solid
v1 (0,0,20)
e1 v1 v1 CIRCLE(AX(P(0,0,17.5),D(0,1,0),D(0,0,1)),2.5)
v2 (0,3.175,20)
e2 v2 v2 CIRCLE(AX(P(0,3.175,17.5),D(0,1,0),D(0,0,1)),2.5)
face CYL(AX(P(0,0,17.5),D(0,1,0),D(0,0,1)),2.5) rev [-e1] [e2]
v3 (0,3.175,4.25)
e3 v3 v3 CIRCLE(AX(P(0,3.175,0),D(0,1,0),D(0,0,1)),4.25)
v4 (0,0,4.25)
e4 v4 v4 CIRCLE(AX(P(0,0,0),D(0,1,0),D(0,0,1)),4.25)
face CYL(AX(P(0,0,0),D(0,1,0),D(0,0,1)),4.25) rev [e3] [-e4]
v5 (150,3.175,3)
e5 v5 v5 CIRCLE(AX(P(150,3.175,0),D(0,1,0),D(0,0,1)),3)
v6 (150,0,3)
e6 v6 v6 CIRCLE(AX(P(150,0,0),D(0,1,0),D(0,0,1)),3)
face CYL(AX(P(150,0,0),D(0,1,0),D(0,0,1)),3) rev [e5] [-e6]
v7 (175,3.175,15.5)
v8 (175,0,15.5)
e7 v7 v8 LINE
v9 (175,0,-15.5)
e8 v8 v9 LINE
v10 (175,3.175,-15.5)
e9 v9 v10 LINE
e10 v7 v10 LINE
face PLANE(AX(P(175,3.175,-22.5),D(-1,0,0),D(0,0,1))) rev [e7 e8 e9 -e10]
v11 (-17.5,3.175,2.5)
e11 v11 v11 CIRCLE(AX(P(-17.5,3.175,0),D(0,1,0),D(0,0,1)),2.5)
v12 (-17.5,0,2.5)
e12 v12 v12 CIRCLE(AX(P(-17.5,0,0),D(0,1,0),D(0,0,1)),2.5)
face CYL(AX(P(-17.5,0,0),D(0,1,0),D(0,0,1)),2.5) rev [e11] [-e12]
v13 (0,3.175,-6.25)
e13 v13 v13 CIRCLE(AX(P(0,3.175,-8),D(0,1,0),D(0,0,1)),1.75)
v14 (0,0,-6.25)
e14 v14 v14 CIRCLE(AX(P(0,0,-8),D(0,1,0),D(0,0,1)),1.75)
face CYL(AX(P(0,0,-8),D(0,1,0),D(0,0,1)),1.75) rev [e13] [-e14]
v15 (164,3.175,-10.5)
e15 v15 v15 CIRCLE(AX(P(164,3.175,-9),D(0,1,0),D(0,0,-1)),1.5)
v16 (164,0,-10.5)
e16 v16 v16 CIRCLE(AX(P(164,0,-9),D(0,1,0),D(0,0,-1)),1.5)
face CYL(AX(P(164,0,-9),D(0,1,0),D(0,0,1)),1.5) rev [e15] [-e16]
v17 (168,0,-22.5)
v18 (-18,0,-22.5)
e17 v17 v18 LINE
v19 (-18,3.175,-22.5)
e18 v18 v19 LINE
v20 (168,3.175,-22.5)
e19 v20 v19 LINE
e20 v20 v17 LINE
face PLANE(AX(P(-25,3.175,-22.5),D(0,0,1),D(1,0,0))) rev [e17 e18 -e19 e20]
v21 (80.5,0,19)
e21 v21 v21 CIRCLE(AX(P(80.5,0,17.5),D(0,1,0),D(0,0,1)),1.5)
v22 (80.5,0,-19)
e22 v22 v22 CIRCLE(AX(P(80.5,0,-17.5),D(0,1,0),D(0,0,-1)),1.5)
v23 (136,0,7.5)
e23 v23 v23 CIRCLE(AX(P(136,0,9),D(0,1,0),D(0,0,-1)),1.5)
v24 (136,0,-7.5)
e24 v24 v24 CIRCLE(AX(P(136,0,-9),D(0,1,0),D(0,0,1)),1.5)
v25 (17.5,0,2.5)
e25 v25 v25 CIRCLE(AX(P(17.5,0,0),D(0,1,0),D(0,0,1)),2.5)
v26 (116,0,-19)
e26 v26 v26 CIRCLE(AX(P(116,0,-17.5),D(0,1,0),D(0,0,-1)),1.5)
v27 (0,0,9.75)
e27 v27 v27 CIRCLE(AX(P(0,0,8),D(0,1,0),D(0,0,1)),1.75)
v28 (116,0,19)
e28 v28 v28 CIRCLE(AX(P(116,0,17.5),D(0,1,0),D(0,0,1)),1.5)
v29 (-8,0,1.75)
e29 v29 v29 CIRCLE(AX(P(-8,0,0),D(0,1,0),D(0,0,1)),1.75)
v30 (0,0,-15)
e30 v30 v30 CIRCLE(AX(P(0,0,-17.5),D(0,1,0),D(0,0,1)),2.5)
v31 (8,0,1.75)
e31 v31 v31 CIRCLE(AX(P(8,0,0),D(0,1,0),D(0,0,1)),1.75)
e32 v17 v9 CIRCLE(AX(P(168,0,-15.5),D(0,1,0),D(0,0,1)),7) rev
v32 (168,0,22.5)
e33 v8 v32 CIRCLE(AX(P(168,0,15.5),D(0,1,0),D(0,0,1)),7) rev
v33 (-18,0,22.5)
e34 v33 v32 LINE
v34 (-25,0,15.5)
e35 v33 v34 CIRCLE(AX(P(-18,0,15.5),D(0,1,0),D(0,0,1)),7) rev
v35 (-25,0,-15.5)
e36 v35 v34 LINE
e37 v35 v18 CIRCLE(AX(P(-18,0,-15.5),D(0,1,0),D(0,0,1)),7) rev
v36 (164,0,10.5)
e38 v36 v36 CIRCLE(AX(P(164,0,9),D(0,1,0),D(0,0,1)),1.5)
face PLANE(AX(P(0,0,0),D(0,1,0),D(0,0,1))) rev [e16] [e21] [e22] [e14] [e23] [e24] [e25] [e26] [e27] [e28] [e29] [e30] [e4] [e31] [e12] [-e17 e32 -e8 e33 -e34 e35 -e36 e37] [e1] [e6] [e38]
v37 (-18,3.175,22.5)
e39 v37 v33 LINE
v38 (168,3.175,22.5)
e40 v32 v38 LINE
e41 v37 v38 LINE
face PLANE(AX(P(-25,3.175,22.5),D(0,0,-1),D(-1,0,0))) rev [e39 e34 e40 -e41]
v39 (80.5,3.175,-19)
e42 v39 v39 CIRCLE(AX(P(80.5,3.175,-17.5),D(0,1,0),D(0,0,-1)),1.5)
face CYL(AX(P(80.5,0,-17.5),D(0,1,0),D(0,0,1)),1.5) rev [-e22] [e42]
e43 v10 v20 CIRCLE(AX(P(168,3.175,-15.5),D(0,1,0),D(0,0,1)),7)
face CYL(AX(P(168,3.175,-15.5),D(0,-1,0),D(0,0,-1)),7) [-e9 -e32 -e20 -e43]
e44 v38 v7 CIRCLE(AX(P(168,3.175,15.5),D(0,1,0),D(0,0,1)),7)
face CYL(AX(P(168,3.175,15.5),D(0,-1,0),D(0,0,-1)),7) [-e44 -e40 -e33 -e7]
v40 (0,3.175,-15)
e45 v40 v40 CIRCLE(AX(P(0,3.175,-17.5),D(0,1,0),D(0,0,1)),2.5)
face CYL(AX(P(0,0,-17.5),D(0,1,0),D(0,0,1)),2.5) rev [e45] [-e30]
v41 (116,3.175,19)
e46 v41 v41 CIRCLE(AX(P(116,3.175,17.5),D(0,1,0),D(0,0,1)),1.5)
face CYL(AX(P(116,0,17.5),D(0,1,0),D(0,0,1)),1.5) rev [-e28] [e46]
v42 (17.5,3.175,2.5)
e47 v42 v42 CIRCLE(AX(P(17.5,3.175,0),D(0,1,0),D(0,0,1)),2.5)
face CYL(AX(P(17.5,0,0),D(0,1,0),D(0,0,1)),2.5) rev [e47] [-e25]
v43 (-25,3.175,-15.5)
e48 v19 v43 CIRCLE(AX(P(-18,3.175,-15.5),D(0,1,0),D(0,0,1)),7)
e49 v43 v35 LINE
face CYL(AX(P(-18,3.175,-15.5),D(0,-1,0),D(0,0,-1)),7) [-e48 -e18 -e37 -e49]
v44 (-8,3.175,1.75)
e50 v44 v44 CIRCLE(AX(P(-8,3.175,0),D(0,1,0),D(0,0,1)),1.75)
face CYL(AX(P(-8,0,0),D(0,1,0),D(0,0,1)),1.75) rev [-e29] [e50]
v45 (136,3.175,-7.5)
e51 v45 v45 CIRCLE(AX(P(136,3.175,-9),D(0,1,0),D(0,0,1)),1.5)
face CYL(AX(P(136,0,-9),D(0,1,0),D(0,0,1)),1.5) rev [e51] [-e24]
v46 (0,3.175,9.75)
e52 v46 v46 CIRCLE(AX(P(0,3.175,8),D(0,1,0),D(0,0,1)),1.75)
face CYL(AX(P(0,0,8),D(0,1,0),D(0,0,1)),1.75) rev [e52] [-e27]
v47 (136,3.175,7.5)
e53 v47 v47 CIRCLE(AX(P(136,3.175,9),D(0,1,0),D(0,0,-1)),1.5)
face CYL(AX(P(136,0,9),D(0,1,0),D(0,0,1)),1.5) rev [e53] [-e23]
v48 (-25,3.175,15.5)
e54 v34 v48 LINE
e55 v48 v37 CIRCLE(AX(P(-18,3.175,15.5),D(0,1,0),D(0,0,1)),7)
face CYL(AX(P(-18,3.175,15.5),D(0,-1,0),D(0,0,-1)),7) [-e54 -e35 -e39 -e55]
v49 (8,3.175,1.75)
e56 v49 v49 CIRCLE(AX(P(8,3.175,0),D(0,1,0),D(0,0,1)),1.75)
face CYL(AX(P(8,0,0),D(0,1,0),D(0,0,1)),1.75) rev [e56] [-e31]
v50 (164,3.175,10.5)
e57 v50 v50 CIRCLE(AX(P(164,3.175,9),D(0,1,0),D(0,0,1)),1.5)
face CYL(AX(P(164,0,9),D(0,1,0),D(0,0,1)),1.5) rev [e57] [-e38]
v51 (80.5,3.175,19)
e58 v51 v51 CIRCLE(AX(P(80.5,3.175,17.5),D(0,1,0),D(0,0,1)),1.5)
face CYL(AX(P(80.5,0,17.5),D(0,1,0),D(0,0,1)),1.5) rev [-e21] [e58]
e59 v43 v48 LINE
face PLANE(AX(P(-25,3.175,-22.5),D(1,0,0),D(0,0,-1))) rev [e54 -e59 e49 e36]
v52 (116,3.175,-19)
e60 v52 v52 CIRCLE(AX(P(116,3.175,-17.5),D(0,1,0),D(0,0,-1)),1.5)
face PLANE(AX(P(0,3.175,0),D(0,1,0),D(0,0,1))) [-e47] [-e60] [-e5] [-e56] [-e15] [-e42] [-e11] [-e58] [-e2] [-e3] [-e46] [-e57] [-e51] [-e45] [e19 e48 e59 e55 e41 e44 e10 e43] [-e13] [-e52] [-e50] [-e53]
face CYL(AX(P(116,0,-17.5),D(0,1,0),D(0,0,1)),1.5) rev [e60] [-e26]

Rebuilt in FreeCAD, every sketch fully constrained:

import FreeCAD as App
import Part
import Sketcher
from FreeCAD import Vector


def edges_at(feature, points):
    """Names of the edges that pass closest to the given points."""
    edges = feature.Shape.Edges
    near = lambda p: min(range(len(edges)), key=lambda i: edges[i].distToShape(Part.Vertex(*p))[0])
    return sorted({f"Edge{near(p) + 1}" for p in points})

doc = App.newDocument("Part")
body = doc.addObject("PartDesign::Body", "Body")

sketch1 = doc.addObject("Sketcher::SketchObject", "Sketch")
body.addObject(sketch1)
sketch1.AttachmentSupport = (doc.XZ_Plane, [""])
sketch1.MapMode = "FlatFace"
sketch1.addGeometry([
    Part.LineSegment(Vector(-25, -22, 0), Vector(-25, 22, 0)),
    Part.LineSegment(Vector(-25, 22, 0), Vector(175, 22, 0)),
    Part.LineSegment(Vector(175, 22, 0), Vector(175, -22, 0)),
    Part.LineSegment(Vector(175, -22, 0), Vector(-25, -22, 0)),
], False)
sketch1.addConstraint([
    Sketcher.Constraint("Coincident", 0, 2, 1, 1),
    Sketcher.Constraint("Coincident", 1, 2, 2, 1),
    Sketcher.Constraint("Coincident", 2, 2, 3, 1),
    Sketcher.Constraint("Coincident", 3, 2, 0, 1),
    Sketcher.Constraint("Vertical", 0),
    Sketcher.Constraint("Horizontal", 1),
    Sketcher.Constraint("Vertical", 2),
    Sketcher.Constraint("Horizontal", 3),
    Sketcher.Constraint("DistanceX", 1, 1, 1, 2, 200.0),
    Sketcher.Constraint("DistanceY", 0, 1, 0, 2, 45.0),
    Sketcher.Constraint("DistanceX", 0, 2, -1, 1, 25.0),
    Sketcher.Constraint("DistanceY", -1, 1, 0, 2, 22.5),
])
pad1 = doc.addObject("PartDesign::Pad", "Pad")
body.addObject(pad1)
pad1.Profile = sketch1
pad1.Length = 3.175
pad1.Reversed = True

sketch2 = doc.addObject("Sketcher::SketchObject", "Sketch001")
body.addObject(sketch2)
sketch2.AttachmentSupport = (doc.XZ_Plane, [""])
sketch2.MapMode = "FlatFace"
sketch2.AttachmentOffset = App.Placement(Vector(0, 0, -3.175), App.Rotation())
sketch2.addGeometry([
    Part.Circle(Vector(150, 0, 0), Vector(0, 0, 1), 3),
    Part.Circle(Vector(136, -9, 0), Vector(0, 0, 1), 1.5),
    Part.Circle(Vector(164, -9, 0), Vector(0, 0, 1), 1.5),
    Part.Circle(Vector(164, 9, 0), Vector(0, 0, 1), 1.5),
    Part.Circle(Vector(136, 9, 0), Vector(0, 0, 1), 1.5),
], False)
sketch2.addConstraint([
    Sketcher.Constraint("Equal", 1, 2),
    Sketcher.Constraint("Equal", 2, 3),
    Sketcher.Constraint("Equal", 3, 4),
    Sketcher.Constraint("Symmetric", 2, 3, 3, 3, -1),
    Sketcher.Constraint("Symmetric", 1, 3, 4, 3, -1),
    Sketcher.Constraint("PointOnObject", 0, 3, -1),
    Sketcher.Constraint("Horizontal", 1, 3, 2, 3),
    Sketcher.Constraint("Diameter", 0, 6.0),
    Sketcher.Constraint("Diameter", 1, 3.0),
    Sketcher.Constraint("DistanceX", -1, 1, 0, 3, 150.0),
    Sketcher.Constraint("DistanceX", -1, 1, 1, 3, 136.0),
    Sketcher.Constraint("DistanceY", 1, 3, -1, 1, 9.0),
    Sketcher.Constraint("DistanceX", -1, 1, 2, 3, 164.0),
])
pocket1 = doc.addObject("PartDesign::Pocket", "Pocket")
body.addObject(pocket1)
pocket1.Profile = sketch2
pocket1.Type = "ThroughAll"
pocket1.Reversed = True

sketch3 = doc.addObject("Sketcher::SketchObject", "Sketch002")
body.addObject(sketch3)
sketch3.AttachmentSupport = (doc.XZ_Plane, [""])
sketch3.MapMode = "FlatFace"
sketch3.AttachmentOffset = App.Placement(Vector(0, 0, -3.175), App.Rotation())
sketch3.addGeometry(Part.Circle(Vector(0, 0, 0), Vector(0, 0, 1), 4.2), False)
sketch3.addConstraint([
    Sketcher.Constraint("Coincident", 0, 3, -1, 1),
    Sketcher.Constraint("Diameter", 0, 8.5),
])
pocket2 = doc.addObject("PartDesign::Pocket", "Pocket001")
body.addObject(pocket2)
pocket2.Profile = sketch3
pocket2.Type = "ThroughAll"
pocket2.Reversed = True

sketch4 = doc.addObject("Sketcher::SketchObject", "Sketch003")
body.addObject(sketch4)
sketch4.AttachmentSupport = (doc.XZ_Plane, [""])
sketch4.MapMode = "FlatFace"
sketch4.AttachmentOffset = App.Placement(Vector(0, 0, -3.175), App.Rotation())
sketch4.addGeometry([
    Part.Circle(Vector(80.5, 17.5, 0), Vector(0, 0, 1), 1.5),
    Part.Circle(Vector(116, 17.5, 0), Vector(0, 0, 1), 1.5),
    Part.Circle(Vector(116, -17.5, 0), Vector(0, 0, 1), 1.5),
    Part.Circle(Vector(80.5, -17.5, 0), Vector(0, 0, 1), 1.5),
], False)
sketch4.addConstraint([
    Sketcher.Constraint("Equal", 0, 1),
    Sketcher.Constraint("Equal", 1, 2),
    Sketcher.Constraint("Equal", 2, 3),
    Sketcher.Constraint("Symmetric", 1, 3, 2, 3, -1),
    Sketcher.Constraint("Symmetric", 0, 3, 3, 3, -1),
    Sketcher.Constraint("Horizontal", 0, 3, 1, 3),
    Sketcher.Constraint("Diameter", 0, 3.0),
    Sketcher.Constraint("DistanceX", -1, 1, 1, 3, 116.0),
    Sketcher.Constraint("DistanceY", 2, 3, 1, 3, 35.0),
    Sketcher.Constraint("DistanceX", -1, 1, 0, 3, 80.5),
])
pocket3 = doc.addObject("PartDesign::Pocket", "Pocket002")
body.addObject(pocket3)
pocket3.Profile = sketch4
pocket3.Type = "ThroughAll"
pocket3.Reversed = True
doc.recompute()

fillet = doc.addObject("PartDesign::Fillet", "Fillet")
body.addObject(fillet)
fillet.Base = (pocket3, edges_at(pocket3, [
    (-25, 1.587, -22.5),
    (175, 1.587, -22.5),
    (175, 1.587, 22.5),
    (-25, 1.587, 22.5),
]))
fillet.Radius = 7

sketch5 = doc.addObject("Sketcher::SketchObject", "Sketch004")
body.addObject(sketch5)
sketch5.AttachmentSupport = (doc.XZ_Plane, [""])
sketch5.MapMode = "FlatFace"
sketch5.AttachmentOffset = App.Placement(Vector(0, 0, -3.175), App.Rotation())
sketch5.addGeometry([
    Part.Circle(Vector(0, -17.5, 0), Vector(0, 0, 1), 2.5),
    Part.Circle(Vector(17.5, 0, 0), Vector(0, 0, 1), 2.5),
    Part.Circle(Vector(0, 17.5, 0), Vector(0, 0, 1), 2.5),
    Part.Circle(Vector(-17.5, 0, 0), Vector(0, 0, 1), 2.5),
], False)
sketch5.addConstraint([
    Sketcher.Constraint("Equal", 0, 1),
    Sketcher.Constraint("Equal", 1, 2),
    Sketcher.Constraint("Equal", 2, 3),
    Sketcher.Constraint("Symmetric", 0, 3, 2, 3, -1, 1),
    Sketcher.Constraint("Symmetric", 1, 3, 3, 3, -1, 1),
    Sketcher.Constraint("PointOnObject", 0, 3, -2),
    Sketcher.Constraint("PointOnObject", 1, 3, -1),
    Sketcher.Constraint("Diameter", 0, 5.0),
    Sketcher.Constraint("DistanceY", 0, 3, 2, 3, 35.0),
    Sketcher.Constraint("DistanceX", 3, 3, 1, 3, 35.0),
])
pocket4 = doc.addObject("PartDesign::Pocket", "Pocket003")
body.addObject(pocket4)
pocket4.Profile = sketch5
pocket4.Type = "ThroughAll"
pocket4.Reversed = True

sketch6 = doc.addObject("Sketcher::SketchObject", "Sketch005")
body.addObject(sketch6)
sketch6.AttachmentSupport = (doc.XZ_Plane, [""])
sketch6.MapMode = "FlatFace"
sketch6.AttachmentOffset = App.Placement(Vector(0, 0, -3.175), App.Rotation())
sketch6.addGeometry([
    Part.Circle(Vector(0, -8, 0), Vector(0, 0, 1), 1.8),
    Part.Circle(Vector(8, 0, 0), Vector(0, 0, 1), 1.8),
    Part.Circle(Vector(0, 8, 0), Vector(0, 0, 1), 1.8),
    Part.Circle(Vector(-8, 0, 0), Vector(0, 0, 1), 1.8),
], False)
sketch6.addConstraint([
    Sketcher.Constraint("Equal", 0, 1),
    Sketcher.Constraint("Equal", 1, 2),
    Sketcher.Constraint("Equal", 2, 3),
    Sketcher.Constraint("Symmetric", 0, 3, 2, 3, -1, 1),
    Sketcher.Constraint("Symmetric", 1, 3, 3, 3, -1, 1),
    Sketcher.Constraint("PointOnObject", 0, 3, -2),
    Sketcher.Constraint("PointOnObject", 1, 3, -1),
    Sketcher.Constraint("Diameter", 0, 3.5),
    Sketcher.Constraint("DistanceY", 0, 3, -1, 1, 8.0),
    Sketcher.Constraint("DistanceX", -1, 1, 1, 3, 8.0),
])
pocket5 = doc.addObject("PartDesign::Pocket", "Pocket004")
body.addObject(pocket5)
pocket5.Profile = sketch6
pocket5.Type = "ThroughAll"
pocket5.Reversed = True

doc.recompute()
